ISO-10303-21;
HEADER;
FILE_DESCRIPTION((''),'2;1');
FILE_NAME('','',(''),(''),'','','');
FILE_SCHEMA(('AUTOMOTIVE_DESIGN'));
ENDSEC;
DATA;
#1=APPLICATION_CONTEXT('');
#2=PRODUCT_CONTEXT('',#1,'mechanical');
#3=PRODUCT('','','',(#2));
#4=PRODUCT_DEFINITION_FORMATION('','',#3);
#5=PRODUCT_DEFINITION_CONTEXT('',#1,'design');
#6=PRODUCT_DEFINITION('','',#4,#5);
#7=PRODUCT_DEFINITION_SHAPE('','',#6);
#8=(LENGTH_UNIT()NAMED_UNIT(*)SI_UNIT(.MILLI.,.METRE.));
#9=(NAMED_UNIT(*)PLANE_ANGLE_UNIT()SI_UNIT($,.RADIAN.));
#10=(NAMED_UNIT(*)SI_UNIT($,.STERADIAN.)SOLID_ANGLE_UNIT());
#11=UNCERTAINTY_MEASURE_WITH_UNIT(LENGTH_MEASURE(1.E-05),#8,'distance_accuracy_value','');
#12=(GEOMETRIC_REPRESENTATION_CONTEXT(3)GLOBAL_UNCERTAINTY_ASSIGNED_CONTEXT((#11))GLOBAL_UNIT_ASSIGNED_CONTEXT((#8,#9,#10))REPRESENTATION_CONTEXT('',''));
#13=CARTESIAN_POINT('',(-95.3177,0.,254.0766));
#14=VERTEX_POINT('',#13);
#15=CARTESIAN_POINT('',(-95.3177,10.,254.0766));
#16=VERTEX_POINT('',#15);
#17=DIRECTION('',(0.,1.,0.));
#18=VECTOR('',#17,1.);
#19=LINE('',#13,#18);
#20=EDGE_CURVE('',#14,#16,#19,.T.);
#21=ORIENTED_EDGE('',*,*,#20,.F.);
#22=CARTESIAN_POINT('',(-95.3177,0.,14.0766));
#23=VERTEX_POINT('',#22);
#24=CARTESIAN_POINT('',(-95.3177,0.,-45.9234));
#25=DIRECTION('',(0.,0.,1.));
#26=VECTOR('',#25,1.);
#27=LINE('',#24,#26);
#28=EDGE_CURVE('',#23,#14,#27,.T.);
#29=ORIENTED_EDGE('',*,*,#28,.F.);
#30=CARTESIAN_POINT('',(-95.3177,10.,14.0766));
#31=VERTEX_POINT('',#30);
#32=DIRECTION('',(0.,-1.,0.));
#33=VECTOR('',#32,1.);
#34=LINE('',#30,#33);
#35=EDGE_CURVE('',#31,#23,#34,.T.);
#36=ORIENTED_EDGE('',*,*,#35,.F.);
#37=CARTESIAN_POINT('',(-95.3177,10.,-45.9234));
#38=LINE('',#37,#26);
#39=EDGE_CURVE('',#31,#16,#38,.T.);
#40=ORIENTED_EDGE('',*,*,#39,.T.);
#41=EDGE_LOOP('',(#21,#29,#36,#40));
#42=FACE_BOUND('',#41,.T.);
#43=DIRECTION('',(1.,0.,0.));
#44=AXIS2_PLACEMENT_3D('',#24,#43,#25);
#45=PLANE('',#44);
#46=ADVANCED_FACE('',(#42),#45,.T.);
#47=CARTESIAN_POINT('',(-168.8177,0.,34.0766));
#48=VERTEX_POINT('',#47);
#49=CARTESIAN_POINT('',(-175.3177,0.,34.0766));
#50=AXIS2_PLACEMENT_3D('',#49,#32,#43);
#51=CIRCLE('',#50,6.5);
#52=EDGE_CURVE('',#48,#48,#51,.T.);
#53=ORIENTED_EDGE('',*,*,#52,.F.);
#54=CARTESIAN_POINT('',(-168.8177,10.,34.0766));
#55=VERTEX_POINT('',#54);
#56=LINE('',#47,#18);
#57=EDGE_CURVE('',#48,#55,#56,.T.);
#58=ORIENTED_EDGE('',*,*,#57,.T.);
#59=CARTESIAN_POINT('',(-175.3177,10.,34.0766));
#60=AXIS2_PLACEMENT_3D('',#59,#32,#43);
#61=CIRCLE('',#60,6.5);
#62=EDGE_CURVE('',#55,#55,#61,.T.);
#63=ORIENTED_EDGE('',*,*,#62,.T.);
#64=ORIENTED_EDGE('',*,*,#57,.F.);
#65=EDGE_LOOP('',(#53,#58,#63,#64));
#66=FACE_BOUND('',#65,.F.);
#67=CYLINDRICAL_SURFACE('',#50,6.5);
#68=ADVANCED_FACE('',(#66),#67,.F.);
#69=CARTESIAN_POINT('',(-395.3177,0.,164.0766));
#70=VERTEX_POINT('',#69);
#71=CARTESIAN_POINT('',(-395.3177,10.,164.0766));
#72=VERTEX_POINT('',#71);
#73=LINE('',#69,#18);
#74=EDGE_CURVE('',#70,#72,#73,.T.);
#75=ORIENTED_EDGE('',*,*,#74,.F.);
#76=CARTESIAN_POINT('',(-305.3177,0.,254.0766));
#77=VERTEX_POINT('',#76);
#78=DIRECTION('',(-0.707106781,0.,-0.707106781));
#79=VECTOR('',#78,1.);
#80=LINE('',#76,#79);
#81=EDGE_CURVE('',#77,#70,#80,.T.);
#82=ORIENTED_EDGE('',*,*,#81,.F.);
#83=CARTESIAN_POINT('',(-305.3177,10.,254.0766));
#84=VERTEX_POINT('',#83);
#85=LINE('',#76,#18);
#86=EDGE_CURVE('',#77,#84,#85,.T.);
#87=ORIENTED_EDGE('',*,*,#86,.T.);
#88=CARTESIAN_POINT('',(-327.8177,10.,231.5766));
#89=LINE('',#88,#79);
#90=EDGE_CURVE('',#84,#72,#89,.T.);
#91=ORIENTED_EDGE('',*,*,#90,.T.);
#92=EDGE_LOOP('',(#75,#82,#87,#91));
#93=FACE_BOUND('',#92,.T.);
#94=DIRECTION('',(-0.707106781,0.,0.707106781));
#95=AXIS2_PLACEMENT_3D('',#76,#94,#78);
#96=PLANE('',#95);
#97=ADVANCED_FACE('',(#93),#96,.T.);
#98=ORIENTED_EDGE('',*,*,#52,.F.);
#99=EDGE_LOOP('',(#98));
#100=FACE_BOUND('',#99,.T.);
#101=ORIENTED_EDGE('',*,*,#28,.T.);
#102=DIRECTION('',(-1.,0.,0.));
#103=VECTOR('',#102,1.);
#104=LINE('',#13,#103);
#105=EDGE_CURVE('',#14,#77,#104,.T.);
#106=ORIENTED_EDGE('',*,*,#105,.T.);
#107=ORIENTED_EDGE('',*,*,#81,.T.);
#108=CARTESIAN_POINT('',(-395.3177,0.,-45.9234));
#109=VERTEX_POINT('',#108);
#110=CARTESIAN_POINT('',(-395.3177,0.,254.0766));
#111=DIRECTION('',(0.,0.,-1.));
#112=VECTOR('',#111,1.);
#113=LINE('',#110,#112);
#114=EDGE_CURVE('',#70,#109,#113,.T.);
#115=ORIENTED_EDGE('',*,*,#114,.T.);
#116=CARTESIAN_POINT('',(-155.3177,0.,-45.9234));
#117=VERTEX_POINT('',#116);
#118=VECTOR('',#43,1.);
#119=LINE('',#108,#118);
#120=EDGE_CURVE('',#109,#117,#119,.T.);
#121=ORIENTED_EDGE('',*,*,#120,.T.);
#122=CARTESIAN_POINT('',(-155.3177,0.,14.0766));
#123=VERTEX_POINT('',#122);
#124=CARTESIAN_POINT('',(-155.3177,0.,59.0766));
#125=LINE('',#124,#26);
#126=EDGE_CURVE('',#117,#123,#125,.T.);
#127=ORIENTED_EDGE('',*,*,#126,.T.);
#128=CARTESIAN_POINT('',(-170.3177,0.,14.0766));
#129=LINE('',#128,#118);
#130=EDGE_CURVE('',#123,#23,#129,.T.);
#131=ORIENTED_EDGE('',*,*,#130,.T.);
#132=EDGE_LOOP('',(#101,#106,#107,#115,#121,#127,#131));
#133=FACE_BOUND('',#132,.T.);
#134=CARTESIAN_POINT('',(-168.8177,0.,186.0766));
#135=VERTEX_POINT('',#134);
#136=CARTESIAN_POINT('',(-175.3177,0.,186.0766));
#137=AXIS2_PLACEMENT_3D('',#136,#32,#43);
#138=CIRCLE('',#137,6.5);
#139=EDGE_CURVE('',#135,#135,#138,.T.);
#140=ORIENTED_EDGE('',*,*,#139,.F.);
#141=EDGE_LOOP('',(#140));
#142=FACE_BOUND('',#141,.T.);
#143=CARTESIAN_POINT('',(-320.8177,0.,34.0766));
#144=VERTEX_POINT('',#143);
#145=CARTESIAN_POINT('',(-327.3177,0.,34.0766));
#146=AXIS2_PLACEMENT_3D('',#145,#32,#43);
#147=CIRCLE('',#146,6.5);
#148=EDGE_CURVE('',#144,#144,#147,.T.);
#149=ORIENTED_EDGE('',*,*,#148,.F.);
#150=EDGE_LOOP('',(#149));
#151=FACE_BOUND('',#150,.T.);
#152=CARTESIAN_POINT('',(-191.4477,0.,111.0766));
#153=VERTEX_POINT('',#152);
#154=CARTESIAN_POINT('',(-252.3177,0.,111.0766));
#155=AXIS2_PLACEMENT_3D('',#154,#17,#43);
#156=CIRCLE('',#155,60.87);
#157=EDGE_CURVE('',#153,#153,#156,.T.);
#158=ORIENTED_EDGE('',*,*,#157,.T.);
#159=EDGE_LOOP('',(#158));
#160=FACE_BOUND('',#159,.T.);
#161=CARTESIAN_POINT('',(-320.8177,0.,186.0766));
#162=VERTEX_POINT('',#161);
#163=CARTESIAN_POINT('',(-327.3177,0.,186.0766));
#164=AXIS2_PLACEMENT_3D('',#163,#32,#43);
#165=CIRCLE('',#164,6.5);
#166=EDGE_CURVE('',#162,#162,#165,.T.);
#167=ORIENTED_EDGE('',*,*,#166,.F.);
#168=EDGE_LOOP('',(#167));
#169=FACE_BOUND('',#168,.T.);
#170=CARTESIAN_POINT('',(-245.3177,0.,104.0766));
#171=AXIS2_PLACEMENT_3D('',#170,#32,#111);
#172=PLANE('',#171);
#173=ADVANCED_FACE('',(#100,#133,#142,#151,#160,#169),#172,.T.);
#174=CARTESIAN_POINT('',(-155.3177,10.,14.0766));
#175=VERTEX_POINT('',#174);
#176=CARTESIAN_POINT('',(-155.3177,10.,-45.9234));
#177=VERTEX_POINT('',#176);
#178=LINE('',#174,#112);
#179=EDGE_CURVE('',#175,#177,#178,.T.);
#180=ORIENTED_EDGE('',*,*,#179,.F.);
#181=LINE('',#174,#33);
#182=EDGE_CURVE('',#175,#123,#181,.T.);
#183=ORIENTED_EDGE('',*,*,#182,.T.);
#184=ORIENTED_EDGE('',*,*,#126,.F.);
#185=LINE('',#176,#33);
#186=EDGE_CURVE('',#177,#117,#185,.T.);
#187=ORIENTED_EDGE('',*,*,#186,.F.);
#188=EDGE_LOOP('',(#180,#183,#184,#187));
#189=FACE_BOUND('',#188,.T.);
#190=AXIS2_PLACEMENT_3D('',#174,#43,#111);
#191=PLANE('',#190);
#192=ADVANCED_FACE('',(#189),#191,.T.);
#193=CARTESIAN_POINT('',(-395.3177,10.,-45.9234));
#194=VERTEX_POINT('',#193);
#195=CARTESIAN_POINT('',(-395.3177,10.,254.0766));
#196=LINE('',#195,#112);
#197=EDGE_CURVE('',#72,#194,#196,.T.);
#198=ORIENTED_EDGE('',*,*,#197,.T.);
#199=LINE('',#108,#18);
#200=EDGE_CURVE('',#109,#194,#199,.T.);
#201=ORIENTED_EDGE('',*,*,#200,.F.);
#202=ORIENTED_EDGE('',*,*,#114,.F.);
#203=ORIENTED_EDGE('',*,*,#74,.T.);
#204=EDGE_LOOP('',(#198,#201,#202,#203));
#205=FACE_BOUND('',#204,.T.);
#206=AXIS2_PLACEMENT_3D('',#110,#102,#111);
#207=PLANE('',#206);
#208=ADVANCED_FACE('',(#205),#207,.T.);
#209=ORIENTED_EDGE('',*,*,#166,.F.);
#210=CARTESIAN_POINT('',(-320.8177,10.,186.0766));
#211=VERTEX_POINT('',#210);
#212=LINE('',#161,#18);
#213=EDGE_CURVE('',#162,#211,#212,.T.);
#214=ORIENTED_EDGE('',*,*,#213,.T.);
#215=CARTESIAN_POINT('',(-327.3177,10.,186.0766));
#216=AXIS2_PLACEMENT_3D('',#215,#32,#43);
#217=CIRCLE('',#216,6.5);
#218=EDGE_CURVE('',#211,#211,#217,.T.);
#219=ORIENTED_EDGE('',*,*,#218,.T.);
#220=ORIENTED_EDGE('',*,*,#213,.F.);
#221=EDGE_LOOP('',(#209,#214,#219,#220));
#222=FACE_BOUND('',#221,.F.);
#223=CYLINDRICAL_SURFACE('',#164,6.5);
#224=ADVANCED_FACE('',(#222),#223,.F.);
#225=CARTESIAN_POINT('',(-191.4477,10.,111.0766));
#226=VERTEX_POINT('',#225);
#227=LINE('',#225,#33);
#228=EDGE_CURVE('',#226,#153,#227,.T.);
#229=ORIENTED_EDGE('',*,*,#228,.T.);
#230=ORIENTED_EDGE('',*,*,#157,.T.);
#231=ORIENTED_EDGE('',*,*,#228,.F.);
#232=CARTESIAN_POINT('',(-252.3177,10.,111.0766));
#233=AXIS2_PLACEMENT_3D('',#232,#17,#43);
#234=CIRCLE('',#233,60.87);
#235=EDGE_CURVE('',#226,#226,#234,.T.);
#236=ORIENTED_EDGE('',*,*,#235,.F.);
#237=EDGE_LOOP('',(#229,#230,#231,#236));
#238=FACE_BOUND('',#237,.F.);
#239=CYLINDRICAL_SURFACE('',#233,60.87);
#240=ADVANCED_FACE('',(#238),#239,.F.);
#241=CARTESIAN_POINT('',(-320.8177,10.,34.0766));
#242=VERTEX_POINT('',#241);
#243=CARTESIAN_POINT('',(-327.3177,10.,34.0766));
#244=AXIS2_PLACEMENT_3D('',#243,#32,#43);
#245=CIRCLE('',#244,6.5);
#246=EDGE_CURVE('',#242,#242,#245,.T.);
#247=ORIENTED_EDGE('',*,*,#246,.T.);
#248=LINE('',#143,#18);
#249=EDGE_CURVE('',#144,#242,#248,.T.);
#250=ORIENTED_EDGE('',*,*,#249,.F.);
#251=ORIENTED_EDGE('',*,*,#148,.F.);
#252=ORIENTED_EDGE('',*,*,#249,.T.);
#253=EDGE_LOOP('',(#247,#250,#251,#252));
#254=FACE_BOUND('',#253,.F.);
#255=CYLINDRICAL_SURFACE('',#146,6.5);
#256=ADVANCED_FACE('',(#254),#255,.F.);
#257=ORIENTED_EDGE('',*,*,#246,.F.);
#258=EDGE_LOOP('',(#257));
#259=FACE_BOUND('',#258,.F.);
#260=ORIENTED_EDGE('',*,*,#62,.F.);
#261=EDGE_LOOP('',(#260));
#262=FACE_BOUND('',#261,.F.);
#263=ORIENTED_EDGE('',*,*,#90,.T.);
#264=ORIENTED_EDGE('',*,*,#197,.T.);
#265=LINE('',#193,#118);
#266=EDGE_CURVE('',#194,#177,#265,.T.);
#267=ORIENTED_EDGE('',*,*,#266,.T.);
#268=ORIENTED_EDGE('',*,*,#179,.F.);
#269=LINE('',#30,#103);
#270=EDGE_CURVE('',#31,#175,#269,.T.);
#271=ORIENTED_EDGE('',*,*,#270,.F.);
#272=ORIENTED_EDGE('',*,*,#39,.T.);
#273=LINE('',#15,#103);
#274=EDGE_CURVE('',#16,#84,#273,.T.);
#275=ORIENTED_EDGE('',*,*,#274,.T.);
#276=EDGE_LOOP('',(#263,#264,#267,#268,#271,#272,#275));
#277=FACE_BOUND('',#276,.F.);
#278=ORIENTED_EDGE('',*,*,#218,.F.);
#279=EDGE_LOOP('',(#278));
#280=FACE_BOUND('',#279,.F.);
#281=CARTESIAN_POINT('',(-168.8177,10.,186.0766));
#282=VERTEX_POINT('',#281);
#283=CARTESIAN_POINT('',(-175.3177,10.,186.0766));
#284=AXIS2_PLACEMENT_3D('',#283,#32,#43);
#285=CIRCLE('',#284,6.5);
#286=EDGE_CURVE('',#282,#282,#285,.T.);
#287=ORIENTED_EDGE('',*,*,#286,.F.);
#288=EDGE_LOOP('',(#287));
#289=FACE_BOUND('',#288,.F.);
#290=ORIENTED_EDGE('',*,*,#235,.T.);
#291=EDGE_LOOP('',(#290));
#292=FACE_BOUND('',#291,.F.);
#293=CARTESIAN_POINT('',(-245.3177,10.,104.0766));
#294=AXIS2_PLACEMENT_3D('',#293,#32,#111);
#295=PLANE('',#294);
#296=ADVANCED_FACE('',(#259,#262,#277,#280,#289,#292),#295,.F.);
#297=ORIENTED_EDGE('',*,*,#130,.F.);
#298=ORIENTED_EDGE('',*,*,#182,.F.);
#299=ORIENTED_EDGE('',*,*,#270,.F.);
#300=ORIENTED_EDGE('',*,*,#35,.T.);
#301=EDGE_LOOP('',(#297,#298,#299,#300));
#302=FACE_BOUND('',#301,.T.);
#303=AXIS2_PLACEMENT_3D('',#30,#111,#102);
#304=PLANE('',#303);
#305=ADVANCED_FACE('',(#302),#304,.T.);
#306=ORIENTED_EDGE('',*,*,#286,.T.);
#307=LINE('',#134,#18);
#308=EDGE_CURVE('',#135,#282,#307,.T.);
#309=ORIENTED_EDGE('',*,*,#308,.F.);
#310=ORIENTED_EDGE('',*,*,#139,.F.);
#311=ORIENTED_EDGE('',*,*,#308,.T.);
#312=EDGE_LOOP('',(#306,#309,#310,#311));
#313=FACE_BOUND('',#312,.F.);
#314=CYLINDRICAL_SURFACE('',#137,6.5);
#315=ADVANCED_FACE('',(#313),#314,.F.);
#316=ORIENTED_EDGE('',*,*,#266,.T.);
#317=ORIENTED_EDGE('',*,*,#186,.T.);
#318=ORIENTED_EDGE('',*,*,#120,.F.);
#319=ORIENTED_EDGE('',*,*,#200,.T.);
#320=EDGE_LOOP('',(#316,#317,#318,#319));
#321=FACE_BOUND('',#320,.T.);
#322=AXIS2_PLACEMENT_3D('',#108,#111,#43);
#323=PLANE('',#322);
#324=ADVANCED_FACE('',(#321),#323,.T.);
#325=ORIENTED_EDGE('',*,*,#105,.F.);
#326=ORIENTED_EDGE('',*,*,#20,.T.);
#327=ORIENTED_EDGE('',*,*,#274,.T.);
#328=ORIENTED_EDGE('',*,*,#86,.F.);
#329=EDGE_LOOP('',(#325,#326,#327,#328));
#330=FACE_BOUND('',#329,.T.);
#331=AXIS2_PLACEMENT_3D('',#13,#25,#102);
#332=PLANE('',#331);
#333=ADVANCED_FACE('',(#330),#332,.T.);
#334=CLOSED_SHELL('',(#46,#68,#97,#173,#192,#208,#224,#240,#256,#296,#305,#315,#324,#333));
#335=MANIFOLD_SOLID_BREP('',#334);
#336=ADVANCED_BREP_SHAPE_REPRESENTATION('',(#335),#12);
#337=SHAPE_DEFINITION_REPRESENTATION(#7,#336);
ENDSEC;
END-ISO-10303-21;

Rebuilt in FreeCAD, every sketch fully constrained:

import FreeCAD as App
import Part
import Sketcher

V = App.Vector
Q = App.Units.Quantity


def add_polygon(sketch, points):
    """Adds a closed chain of lines whose ends are joined by coincident constraints."""
    first, n = sketch.GeometryCount, len(points)
    for a, b in zip(points, points[1:] + points[:1]):
        sketch.addGeometry(Part.LineSegment(App.Vector(*a, 0), App.Vector(*b, 0)), False)
    for i in range(n):
        sketch.addConstraint(Sketcher.Constraint("Coincident", first + i, 2, first + (i + 1) % n, 1))

doc = App.newDocument("Part")
body = doc.addObject("PartDesign::Body", "Body")

# Sketch on XZ plane
sketch1 = body.newObject("Sketcher::SketchObject", "Sketch")
sketch1.AttachmentSupport = (doc.getObject("XZ_Plane"), [""])
sketch1.MapMode = "FlatFace"
add_polygon(sketch1, [(-395, 254), (-395, -46), (-95, -46), (-95, 254)])  # lines 0-3
sketch1.addConstraint(Sketcher.Constraint("Vertical", 0))
sketch1.addConstraint(Sketcher.Constraint("Horizontal", 1))
sketch1.addConstraint(Sketcher.Constraint("Vertical", 2))
sketch1.addConstraint(Sketcher.Constraint("Horizontal", 3))
sketch1.addConstraint(Sketcher.Constraint("Equal", 3, 0))
sketch1.addConstraint(Sketcher.Constraint("DistanceX", 1, 1, 1, 2, Q("300 mm")))
sketch1.addConstraint(Sketcher.Constraint("DistanceX", 0, 2, -1, 1, Q("395.3177 mm")))
sketch1.addConstraint(Sketcher.Constraint("DistanceY", 0, 2, -1, 1, Q("45.9234 mm")))
pad1 = body.newObject("PartDesign::Pad", "Pad")
pad1.Profile = sketch1
pad1.Length = 10
pad1.Reversed = True

# Sketch on XZ plane
sketch2 = body.newObject("Sketcher::SketchObject", "Sketch001")
sketch2.AttachmentSupport = (doc.getObject("XZ_Plane"), [""])
sketch2.MapMode = "FlatFace"
sketch2.addGeometry(Part.Circle(V(-175, 186, 0), V(0, 0, 1), 6), False)
sketch2.addGeometry(Part.Circle(V(-327, 34, 0), V(0, 0, 1), 6), False)
sketch2.addGeometry(Part.Circle(V(-175, 34, 0), V(0, 0, 1), 6), False)
sketch2.addGeometry(Part.Circle(V(-327, 186, 0), V(0, 0, 1), 6), False)
sketch2.addConstraint(Sketcher.Constraint("Equal", 0, 1))
sketch2.addConstraint(Sketcher.Constraint("Equal", 1, 2))
sketch2.addConstraint(Sketcher.Constraint("Equal", 2, 3))
sketch2.addConstraint(Sketcher.Constraint("Horizontal", 1, 3, 2, 3))
sketch2.addConstraint(Sketcher.Constraint("Horizontal", 0, 3, 3, 3))
sketch2.addConstraint(Sketcher.Constraint("Vertical", 0, 3, 2, 3))
sketch2.addConstraint(Sketcher.Constraint("Vertical", 1, 3, 3, 3))
sketch2.addConstraint(Sketcher.Constraint("Diameter", 0, Q("13 mm")))
sketch2.addConstraint(Sketcher.Constraint("DistanceX", 1, 3, 0, 3, Q("152 mm")))
sketch2.addConstraint(Sketcher.Constraint("DistanceY", 1, 3, 0, 3, Q("152 mm")))
sketch2.addConstraint(Sketcher.Constraint("DistanceX", 0, 3, -1, 1, Q("175.3177 mm")))
sketch2.addConstraint(Sketcher.Constraint("DistanceY", -1, 1, 0, 3, Q("186.0766 mm")))
pocket1 = body.newObject("PartDesign::Pocket", "Pocket")
pocket1.Profile = sketch2
pocket1.Type = "ThroughAll"
pocket1.Midplane = True

# Sketch on XZ plane
sketch3 = body.newObject("Sketcher::SketchObject", "Sketch002")
sketch3.AttachmentSupport = (doc.getObject("XZ_Plane"), [""])
sketch3.MapMode = "FlatFace"
sketch3.AttachmentOffset = App.Placement(V(0, 0, -10), App.Rotation())
sketch3.addGeometry(Part.Circle(V(-252, 111, 0), V(0, 0, 1), 61), False)  # 0
add_polygon(sketch3, [(-95, 14), (-95, -46), (-155, -46), (-155, 14)])  # lines 1-4
sketch3.addConstraint(Sketcher.Constraint("Vertical", 1))
sketch3.addConstraint(Sketcher.Constraint("Horizontal", 2))
sketch3.addConstraint(Sketcher.Constraint("Vertical", 3))
sketch3.addConstraint(Sketcher.Constraint("Horizontal", 4))
sketch3.addConstraint(Sketcher.Constraint("Equal", 4, 1))
sketch3.addConstraint(Sketcher.Constraint("Diameter", 0, Q("121.74 mm")))
sketch3.addConstraint(Sketcher.Constraint("DistanceX", 2, 2, 2, 1, Q("60 mm")))
sketch3.addConstraint(Sketcher.Constraint("DistanceX", 0, 3, 1, 2, Q("157 mm")))
sketch3.addConstraint(Sketcher.Constraint("DistanceY", 1, 2, 0, 3, Q("157 mm")))
sketch3.addConstraint(Sketcher.Constraint("DistanceX", 0, 3, -1, 1, Q("252.3177 mm")))
sketch3.addConstraint(Sketcher.Constraint("DistanceY", -1, 1, 0, 3, Q("111.0766 mm")))
pocket2 = body.newObject("PartDesign::Pocket", "Pocket001")
pocket2.Profile = sketch3
pocket2.Type = "ThroughAll"
pocket2.Reversed = True

# Sketch on XZ plane
sketch4 = body.newObject("Sketcher::SketchObject", "Sketch003")
sketch4.AttachmentSupport = (doc.getObject("XZ_Plane"), [""])
sketch4.MapMode = "FlatFace"
add_polygon(sketch4, [(-395, 164), (-305, 254), (-395, 254)])  # lines 0-2
sketch4.addConstraint(Sketcher.Constraint("Horizontal", 1))
sketch4.addConstraint(Sketcher.Constraint("Vertical", 2))
sketch4.addConstraint(Sketcher.Constraint("Equal", 1, 2))
sketch4.addConstraint(Sketcher.Constraint("DistanceX", 1, 2, 1, 1, Q("90 mm")))
sketch4.addConstraint(Sketcher.Constraint("DistanceX", 0, 2, -1, 1, Q("305.3177 mm")))
sketch4.addConstraint(Sketcher.Constraint("DistanceY", -1, 1, 0, 2, Q("254.0766 mm")))
pocket3 = body.newObject("PartDesign::Pocket", "Pocket002")
pocket3.Profile = sketch4
pocket3.Type = "ThroughAll"

doc.recompute()
